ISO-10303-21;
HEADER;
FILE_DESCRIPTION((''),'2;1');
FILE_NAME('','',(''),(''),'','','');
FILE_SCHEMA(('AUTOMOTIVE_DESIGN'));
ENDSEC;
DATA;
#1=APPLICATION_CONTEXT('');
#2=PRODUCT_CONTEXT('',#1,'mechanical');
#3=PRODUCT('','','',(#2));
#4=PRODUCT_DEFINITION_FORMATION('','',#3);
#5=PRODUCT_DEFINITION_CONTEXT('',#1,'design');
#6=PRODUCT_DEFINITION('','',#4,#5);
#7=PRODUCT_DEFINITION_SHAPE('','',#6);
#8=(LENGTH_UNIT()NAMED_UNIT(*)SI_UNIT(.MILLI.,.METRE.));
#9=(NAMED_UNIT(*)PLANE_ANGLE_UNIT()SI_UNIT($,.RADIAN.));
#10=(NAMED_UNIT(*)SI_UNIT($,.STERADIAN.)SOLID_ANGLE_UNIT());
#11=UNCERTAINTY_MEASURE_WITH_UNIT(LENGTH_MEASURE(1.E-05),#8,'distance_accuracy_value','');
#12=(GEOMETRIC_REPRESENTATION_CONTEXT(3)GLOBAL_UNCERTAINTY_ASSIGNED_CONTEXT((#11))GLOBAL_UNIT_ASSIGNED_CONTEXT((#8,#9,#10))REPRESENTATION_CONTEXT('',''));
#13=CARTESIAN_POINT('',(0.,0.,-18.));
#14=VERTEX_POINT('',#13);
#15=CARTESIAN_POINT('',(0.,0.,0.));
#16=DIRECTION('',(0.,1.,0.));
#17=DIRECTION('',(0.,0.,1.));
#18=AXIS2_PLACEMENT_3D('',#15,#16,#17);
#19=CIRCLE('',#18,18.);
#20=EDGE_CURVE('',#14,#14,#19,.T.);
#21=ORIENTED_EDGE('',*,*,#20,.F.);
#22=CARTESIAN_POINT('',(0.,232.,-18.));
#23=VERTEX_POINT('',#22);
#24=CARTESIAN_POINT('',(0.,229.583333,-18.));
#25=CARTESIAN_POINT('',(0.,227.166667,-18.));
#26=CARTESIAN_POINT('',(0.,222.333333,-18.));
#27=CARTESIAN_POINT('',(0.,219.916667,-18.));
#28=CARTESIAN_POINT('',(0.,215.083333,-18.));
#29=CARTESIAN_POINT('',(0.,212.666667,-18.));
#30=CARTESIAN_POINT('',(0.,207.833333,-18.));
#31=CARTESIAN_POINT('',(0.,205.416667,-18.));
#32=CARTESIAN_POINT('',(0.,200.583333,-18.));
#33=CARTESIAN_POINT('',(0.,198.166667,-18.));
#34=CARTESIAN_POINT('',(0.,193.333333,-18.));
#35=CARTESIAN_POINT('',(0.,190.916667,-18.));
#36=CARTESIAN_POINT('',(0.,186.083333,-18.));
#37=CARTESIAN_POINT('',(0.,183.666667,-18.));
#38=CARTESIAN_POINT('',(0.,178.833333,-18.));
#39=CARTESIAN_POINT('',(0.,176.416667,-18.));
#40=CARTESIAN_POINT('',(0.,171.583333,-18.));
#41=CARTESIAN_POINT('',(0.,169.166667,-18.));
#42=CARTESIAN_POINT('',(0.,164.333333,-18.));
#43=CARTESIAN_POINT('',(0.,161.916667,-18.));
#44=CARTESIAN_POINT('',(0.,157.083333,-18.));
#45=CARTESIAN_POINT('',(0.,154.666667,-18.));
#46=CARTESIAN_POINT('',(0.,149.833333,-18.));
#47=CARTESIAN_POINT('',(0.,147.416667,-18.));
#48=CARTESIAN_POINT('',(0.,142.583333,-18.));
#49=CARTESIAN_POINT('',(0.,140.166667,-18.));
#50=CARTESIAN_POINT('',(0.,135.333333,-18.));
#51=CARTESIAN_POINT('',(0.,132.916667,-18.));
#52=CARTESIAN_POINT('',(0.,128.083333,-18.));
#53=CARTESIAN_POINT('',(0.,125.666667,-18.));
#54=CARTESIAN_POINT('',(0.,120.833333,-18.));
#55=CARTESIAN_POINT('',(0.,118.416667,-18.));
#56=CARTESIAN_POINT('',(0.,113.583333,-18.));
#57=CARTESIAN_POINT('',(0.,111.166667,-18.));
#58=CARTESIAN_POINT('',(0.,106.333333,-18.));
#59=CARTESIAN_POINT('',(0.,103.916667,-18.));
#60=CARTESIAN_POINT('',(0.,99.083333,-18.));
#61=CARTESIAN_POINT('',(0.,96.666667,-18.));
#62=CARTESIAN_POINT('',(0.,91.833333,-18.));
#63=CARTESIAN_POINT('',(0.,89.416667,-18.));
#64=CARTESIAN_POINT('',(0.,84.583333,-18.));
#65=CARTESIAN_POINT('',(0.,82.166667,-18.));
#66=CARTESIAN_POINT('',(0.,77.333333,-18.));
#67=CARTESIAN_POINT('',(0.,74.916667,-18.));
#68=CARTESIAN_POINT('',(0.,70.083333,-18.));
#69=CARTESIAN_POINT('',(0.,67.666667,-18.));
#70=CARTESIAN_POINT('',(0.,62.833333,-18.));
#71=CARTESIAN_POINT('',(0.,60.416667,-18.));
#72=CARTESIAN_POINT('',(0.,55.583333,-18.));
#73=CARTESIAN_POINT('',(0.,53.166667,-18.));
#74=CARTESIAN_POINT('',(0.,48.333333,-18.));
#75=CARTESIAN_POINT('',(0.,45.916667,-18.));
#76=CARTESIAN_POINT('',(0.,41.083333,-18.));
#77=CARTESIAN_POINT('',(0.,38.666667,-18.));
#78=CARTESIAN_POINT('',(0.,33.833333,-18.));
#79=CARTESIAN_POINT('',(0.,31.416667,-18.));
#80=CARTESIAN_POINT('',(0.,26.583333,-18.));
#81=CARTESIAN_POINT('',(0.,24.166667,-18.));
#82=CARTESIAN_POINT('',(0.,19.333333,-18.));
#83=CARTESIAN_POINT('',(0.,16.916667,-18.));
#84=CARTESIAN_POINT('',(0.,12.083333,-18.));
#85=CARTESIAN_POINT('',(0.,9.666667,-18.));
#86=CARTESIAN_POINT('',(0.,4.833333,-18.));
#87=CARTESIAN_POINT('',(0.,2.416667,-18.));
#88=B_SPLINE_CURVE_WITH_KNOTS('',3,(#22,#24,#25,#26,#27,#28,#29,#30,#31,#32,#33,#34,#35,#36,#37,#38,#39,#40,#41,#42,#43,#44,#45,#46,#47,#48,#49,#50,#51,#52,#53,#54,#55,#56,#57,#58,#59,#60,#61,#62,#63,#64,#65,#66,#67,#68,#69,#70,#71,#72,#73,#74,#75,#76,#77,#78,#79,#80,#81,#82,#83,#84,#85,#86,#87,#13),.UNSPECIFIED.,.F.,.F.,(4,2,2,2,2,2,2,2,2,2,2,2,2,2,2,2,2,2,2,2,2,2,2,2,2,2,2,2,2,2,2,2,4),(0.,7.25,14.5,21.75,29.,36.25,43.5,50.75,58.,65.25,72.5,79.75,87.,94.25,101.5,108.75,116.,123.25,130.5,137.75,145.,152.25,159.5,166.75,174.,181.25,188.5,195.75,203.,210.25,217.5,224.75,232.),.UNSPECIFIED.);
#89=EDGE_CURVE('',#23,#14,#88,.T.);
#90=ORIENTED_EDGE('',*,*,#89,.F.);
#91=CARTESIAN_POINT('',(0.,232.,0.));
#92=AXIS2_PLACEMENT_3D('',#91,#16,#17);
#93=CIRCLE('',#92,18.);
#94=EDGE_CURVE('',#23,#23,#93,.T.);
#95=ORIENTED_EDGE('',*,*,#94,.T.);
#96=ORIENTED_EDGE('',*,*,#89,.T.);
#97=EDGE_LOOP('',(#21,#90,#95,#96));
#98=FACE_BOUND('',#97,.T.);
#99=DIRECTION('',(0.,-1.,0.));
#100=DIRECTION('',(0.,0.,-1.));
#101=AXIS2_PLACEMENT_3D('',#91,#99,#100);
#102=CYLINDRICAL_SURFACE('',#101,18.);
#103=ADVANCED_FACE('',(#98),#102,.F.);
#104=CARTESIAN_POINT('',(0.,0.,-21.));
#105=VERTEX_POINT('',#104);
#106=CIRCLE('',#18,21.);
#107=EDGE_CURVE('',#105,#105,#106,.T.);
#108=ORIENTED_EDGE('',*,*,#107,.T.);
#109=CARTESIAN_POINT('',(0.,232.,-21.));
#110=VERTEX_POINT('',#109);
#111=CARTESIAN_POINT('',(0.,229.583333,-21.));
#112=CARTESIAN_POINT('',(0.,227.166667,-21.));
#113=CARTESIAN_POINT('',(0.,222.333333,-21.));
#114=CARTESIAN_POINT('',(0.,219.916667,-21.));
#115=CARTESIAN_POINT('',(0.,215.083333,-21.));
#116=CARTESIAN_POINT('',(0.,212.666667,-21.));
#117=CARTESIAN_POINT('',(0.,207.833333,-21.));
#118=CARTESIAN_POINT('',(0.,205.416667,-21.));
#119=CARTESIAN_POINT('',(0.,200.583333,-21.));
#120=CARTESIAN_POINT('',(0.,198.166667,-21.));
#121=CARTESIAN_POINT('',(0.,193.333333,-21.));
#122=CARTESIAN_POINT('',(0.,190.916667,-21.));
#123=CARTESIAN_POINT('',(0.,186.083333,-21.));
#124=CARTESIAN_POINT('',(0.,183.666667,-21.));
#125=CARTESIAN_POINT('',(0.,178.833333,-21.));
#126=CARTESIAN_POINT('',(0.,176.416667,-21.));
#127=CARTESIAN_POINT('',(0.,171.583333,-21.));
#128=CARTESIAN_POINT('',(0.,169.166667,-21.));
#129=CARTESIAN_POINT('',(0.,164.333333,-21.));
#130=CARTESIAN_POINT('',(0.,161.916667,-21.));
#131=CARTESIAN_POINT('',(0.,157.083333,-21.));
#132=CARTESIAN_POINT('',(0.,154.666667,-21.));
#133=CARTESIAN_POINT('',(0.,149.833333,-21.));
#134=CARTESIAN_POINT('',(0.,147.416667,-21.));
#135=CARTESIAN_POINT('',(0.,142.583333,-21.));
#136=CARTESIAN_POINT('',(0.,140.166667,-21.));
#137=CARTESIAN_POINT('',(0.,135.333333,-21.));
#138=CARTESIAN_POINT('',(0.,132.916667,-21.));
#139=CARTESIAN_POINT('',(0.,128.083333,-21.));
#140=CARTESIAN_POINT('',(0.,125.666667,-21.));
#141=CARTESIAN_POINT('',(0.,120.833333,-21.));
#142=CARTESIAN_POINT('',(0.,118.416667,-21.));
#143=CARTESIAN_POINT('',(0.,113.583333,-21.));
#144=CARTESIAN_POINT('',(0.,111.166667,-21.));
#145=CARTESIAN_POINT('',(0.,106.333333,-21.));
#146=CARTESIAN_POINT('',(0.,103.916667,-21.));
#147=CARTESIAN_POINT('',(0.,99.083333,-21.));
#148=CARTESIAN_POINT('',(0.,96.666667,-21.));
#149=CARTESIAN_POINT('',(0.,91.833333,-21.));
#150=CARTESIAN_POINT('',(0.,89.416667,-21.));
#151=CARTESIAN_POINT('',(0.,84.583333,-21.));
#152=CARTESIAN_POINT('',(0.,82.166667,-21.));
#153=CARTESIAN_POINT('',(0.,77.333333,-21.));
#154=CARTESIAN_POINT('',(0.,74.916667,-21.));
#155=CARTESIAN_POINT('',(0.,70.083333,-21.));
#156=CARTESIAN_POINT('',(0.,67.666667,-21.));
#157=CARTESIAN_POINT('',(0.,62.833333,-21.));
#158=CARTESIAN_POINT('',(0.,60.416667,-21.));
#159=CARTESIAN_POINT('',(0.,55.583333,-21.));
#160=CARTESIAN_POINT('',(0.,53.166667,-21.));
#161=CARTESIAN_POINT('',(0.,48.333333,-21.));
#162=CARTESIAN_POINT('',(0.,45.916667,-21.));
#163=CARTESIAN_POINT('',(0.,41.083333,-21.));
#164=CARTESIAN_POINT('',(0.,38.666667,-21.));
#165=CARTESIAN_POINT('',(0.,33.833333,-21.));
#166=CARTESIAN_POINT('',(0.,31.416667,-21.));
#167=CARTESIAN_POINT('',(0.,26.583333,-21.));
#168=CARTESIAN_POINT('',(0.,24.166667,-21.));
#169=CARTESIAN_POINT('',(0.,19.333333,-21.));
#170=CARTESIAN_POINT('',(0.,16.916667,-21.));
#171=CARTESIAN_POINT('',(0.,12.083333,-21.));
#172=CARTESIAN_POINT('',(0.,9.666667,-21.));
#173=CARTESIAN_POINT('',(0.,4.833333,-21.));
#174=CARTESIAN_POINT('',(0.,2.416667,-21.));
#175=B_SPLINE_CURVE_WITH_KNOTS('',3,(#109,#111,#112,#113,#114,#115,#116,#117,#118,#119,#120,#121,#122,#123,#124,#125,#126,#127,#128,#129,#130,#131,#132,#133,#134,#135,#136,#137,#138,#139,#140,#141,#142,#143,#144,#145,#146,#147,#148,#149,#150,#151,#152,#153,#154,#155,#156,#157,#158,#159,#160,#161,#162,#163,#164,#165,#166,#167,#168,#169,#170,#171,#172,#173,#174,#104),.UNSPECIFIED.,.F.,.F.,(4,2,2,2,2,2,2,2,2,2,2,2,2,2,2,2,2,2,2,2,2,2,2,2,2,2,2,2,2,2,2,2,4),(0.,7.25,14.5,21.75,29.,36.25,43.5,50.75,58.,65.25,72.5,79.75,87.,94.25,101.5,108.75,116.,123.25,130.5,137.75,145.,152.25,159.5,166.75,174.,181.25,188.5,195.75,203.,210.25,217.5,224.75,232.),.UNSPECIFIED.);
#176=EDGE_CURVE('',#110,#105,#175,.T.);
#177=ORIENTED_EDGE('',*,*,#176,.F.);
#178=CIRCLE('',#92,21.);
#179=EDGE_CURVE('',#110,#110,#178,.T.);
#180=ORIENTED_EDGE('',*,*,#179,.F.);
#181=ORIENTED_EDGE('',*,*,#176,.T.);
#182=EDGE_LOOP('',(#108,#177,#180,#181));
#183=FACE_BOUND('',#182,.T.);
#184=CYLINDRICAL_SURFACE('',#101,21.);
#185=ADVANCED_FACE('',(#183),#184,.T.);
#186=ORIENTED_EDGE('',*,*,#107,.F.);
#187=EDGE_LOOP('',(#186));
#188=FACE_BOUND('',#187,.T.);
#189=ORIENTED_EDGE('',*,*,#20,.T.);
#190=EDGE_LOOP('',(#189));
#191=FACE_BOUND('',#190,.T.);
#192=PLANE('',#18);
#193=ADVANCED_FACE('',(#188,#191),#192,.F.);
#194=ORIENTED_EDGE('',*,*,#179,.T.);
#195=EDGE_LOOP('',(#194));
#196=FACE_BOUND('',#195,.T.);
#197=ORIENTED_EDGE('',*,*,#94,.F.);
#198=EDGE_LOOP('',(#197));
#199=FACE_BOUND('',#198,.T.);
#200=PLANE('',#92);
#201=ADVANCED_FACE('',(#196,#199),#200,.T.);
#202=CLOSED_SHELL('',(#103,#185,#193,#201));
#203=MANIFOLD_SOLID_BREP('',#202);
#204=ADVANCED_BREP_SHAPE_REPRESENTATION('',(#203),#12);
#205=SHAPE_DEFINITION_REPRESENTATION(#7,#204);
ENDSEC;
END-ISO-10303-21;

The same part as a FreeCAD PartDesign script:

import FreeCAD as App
import Part
import Sketcher
from FreeCAD import Vector

doc = App.newDocument("Part")
body = doc.addObject("PartDesign::Body", "Body")

# Sketch on XZ plane
sketch1 = body.newObject("Sketcher::SketchObject", "Sketch")
sketch1.AttachmentSupport = (doc.getObject("XZ_Plane"), [""])
sketch1.MapMode = "FlatFace"
sketch1.addGeometry([
    Part.Circle(Vector(0, 0, 0), Vector(0, 0, 1), 21),
    Part.Circle(Vector(0, 0, 0), Vector(0, 0, 1), 18),
], False)
sketch1.addConstraint([
    Sketcher.Constraint("Coincident", 0, 3, -1, 1),
    Sketcher.Constraint("Coincident", 1, 3, -1, 1),
    Sketcher.Constraint("Diameter", 0, 42.0),
    Sketcher.Constraint("Diameter", 1, 36.0),
])
pad1 = body.newObject("PartDesign::Pad", "Pad")
pad1.Profile = sketch1
pad1.Length = 232
pad1.Reversed = True

doc.recompute()
